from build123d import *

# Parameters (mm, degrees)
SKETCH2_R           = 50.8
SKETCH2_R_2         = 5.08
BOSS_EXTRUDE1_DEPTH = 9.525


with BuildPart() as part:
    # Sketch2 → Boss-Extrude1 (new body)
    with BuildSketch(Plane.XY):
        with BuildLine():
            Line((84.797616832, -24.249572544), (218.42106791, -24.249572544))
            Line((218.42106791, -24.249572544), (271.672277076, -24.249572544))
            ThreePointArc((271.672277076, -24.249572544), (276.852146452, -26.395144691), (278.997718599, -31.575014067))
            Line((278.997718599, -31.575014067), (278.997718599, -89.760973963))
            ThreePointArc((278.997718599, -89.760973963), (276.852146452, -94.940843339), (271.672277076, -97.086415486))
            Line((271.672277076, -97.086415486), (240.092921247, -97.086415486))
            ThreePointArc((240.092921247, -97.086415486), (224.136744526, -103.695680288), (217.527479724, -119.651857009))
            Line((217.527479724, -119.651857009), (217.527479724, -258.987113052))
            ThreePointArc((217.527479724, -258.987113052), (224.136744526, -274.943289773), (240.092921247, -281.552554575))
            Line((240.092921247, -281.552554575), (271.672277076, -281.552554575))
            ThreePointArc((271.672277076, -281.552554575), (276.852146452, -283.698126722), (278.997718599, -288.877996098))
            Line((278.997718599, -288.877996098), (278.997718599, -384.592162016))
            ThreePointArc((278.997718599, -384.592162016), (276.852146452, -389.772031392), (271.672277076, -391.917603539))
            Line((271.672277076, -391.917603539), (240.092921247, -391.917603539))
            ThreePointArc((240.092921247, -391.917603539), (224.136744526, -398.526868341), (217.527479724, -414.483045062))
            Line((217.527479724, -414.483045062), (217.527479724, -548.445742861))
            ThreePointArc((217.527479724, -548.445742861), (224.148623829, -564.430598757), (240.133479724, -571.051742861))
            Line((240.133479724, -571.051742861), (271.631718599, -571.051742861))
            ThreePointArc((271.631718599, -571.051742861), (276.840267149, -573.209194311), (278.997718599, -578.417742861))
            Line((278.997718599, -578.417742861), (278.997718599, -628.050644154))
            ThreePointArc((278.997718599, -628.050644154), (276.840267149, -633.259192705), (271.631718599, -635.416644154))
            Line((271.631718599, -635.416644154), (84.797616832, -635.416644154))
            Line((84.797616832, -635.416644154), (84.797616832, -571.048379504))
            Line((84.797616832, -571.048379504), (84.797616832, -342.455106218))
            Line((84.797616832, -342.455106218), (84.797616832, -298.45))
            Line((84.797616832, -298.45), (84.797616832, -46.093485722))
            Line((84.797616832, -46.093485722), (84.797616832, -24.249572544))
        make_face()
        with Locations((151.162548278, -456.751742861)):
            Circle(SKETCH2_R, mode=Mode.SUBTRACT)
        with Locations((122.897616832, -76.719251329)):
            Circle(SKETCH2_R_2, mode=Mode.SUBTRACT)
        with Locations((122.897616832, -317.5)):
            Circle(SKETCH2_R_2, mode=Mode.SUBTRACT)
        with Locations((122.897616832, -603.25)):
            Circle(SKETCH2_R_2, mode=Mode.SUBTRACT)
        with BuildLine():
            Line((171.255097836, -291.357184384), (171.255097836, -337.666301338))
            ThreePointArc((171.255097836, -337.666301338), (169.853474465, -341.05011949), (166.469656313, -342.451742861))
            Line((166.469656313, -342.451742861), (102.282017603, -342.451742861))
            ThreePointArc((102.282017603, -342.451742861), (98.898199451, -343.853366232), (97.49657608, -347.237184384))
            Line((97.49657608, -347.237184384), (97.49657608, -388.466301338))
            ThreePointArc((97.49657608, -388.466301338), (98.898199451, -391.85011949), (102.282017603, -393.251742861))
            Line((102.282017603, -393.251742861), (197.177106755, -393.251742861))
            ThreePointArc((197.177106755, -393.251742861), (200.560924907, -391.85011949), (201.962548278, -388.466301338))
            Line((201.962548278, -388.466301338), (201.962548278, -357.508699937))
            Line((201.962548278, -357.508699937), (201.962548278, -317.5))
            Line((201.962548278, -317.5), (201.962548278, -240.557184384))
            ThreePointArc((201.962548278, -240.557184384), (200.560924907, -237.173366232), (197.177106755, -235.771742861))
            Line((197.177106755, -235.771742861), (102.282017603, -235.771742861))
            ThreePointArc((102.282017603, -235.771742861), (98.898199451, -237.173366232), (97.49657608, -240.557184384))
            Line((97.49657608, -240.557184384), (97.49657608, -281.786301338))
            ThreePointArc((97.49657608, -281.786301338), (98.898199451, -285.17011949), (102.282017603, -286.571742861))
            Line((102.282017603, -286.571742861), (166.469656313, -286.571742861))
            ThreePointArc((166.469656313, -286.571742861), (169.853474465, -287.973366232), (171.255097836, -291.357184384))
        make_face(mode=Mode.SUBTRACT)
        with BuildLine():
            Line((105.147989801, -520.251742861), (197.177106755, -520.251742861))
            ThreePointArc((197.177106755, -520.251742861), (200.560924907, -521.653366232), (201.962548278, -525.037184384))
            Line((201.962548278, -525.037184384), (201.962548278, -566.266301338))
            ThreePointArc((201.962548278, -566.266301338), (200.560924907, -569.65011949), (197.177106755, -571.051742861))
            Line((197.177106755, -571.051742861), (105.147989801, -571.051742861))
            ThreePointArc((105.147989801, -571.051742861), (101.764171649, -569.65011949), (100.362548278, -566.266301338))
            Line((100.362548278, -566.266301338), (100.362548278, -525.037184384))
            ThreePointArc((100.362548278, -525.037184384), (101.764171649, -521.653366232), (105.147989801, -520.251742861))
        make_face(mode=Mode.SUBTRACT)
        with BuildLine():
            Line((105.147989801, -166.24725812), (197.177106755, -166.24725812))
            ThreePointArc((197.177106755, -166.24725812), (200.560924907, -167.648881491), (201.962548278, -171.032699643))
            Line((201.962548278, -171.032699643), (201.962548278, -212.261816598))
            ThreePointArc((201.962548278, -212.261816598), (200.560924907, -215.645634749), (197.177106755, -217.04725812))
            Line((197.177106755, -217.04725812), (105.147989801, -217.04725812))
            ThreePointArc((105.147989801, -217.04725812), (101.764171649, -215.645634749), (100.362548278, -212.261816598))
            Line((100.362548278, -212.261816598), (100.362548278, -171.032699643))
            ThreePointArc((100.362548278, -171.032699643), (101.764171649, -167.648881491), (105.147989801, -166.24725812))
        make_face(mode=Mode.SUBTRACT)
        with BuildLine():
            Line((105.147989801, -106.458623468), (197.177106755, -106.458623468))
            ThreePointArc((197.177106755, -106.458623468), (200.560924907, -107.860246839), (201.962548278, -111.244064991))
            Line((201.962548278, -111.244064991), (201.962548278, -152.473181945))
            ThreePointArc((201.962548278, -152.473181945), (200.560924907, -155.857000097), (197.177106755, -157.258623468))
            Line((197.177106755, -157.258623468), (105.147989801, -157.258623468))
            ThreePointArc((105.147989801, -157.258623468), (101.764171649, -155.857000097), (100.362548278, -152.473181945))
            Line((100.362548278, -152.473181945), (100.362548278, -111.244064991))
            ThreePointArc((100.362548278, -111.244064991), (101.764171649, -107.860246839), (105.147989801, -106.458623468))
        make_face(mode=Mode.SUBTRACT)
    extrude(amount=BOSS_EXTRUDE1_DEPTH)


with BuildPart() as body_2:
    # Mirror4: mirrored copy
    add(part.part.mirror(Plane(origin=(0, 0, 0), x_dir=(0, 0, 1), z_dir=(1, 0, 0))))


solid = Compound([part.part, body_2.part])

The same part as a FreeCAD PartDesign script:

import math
import FreeCAD as App
import Part
import Sketcher

V = App.Vector
Q = App.Units.Quantity

doc = App.newDocument("Part")
params = doc.addObject("Spreadsheet::Sheet", "Params")
for row, (alias, value) in enumerate([
    ("sketch1_diameter", "4 in"),
    ("sketch1_diameter2", "0.4 in"),
    ("sketch1_radius", "0.29 in"),
    ("sketch1_radius2", "0.89 in"),
    ("pad1_length", "0.375 in"),
], start=1):
    params.set(f"A{row}", alias)
    params.set(f"B{row}", "=" + value)
    params.setAlias(f"B{row}", alias)

body = doc.addObject("PartDesign::Body", "Body")

# Sketch on XY plane
sketch1 = doc.addObject("Sketcher::SketchObject", "Sketch")
body.addObject(sketch1)
sketch1.AttachmentSupport = (doc.XY_Plane, [""])
sketch1.MapMode = "FlatFace"
sketch1.addGeometry([
    Part.LineSegment(V(271.7, -24.2, 0), V(84.8, -24.2, 0)),  # 0
    Part.LineSegment(V(84.8, -24.2, 0), V(84.8, -635.4, 0)),  # 1
    Part.LineSegment(V(84.8, -635.4, 0), V(271.6, -635.4, 0)),  # 2
    Part.ArcOfCircle(Part.Circle(V(271.6, -628.1, 0), V(0, 0, 1), 7.4), math.radians(-90), math.radians(0)),  # 3
    Part.LineSegment(V(279, -628.1, 0), V(279, -578.4, 0)),  # 4
    Part.ArcOfCircle(Part.Circle(V(271.6, -578.4, 0), V(0, 0, 1), 7.4), math.radians(0), math.radians(90)),  # 5
    Part.LineSegment(V(271.6, -571.1, 0), V(240.1, -571.1, 0)),  # 6
    Part.ArcOfCircle(Part.Circle(V(240.1, -548.4, 0), V(0, 0, 1), 22.6), math.radians(180), math.radians(270)),  # 7
    Part.LineSegment(V(217.5, -548.4, 0), V(217.5, -414.5, 0)),  # 8
    Part.ArcOfCircle(Part.Circle(V(240.1, -414.5, 0), V(0, 0, 1), 22.6), math.radians(90), math.radians(180)),  # 9
    Part.LineSegment(V(240.1, -391.9, 0), V(271.7, -391.9, 0)),  # 10
    Part.ArcOfCircle(Part.Circle(V(271.7, -384.6, 0), V(0, 0, 1), 7.3), math.radians(-90), math.radians(0)),  # 11
    Part.LineSegment(V(279, -384.6, 0), V(279, -288.9, 0)),  # 12
    Part.ArcOfCircle(Part.Circle(V(271.7, -288.9, 0), V(0, 0, 1), 7.3), math.radians(0), math.radians(90)),  # 13
    Part.LineSegment(V(271.7, -281.6, 0), V(240.1, -281.6, 0)),  # 14
    Part.ArcOfCircle(Part.Circle(V(240.1, -259, 0), V(0, 0, 1), 22.6), math.radians(-180), math.radians(-90)),  # 15
    Part.LineSegment(V(217.5, -259, 0), V(217.5, -119.7, 0)),  # 16
    Part.ArcOfCircle(Part.Circle(V(240.1, -119.7, 0), V(0, 0, 1), 22.6), math.radians(90), math.radians(180)),  # 17
    Part.LineSegment(V(240.1, -97.1, 0), V(271.7, -97.1, 0)),  # 18
    Part.ArcOfCircle(Part.Circle(V(271.7, -89.8, 0), V(0, 0, 1), 7.3), math.radians(-90), math.radians(0)),  # 19
    Part.LineSegment(V(279, -89.8, 0), V(279, -31.6, 0)),  # 20
    Part.ArcOfCircle(Part.Circle(V(271.7, -31.6, 0), V(0, 0, 1), 7.3), math.radians(0), math.radians(90)),  # 21
    Part.LineSegment(V(105.1, -520.3, 0), V(197.2, -520.3, 0)),  # 22
    Part.ArcOfCircle(Part.Circle(V(197.2, -525, 0), V(0, 0, 1), 4.8), math.radians(0), math.radians(90)),  # 23
    Part.LineSegment(V(202, -525, 0), V(202, -566.3, 0)),  # 24
    Part.ArcOfCircle(Part.Circle(V(197.2, -566.3, 0), V(0, 0, 1), 4.8), math.radians(-90), math.radians(0)),  # 25
    Part.LineSegment(V(197.2, -571.1, 0), V(105.1, -571.1, 0)),  # 26
    Part.ArcOfCircle(Part.Circle(V(105.1, -566.3, 0), V(0, 0, 1), 4.8), math.radians(180), math.radians(270)),  # 27
    Part.LineSegment(V(100.4, -566.3, 0), V(100.4, -525, 0)),  # 28
    Part.ArcOfCircle(Part.Circle(V(105.1, -525, 0), V(0, 0, 1), 4.8), math.radians(90), math.radians(180)),  # 29
    Part.Circle(V(151.2, -456.8, 0), V(0, 0, 1), 50.8),  # 30
    Part.Circle(V(122.9, -603.2, 0), V(0, 0, 1), 5.1),  # 31
    Part.LineSegment(V(105.1, -166.2, 0), V(197.2, -166.2, 0)),  # 32
    Part.ArcOfCircle(Part.Circle(V(197.2, -171, 0), V(0, 0, 1), 4.8), math.radians(0), math.radians(90)),  # 33
    Part.LineSegment(V(202, -171, 0), V(202, -212.3, 0)),  # 34
    Part.ArcOfCircle(Part.Circle(V(197.2, -212.3, 0), V(0, 0, 1), 4.8), math.radians(-90), math.radians(0)),  # 35
    Part.LineSegment(V(197.2, -217, 0), V(105.1, -217, 0)),  # 36
    Part.ArcOfCircle(Part.Circle(V(105.1, -212.3, 0), V(0, 0, 1), 4.8), math.radians(-180), math.radians(-90)),  # 37
    Part.LineSegment(V(100.4, -212.3, 0), V(100.4, -171, 0)),  # 38
    Part.ArcOfCircle(Part.Circle(V(105.1, -171, 0), V(0, 0, 1), 4.8), math.radians(90), math.radians(180)),  # 39
    Part.LineSegment(V(105.1, -106.5, 0), V(197.2, -106.5, 0)),  # 40
    Part.ArcOfCircle(Part.Circle(V(197.2, -111.2, 0), V(0, 0, 1), 4.8), math.radians(0), math.radians(90)),  # 41
    Part.LineSegment(V(202, -111.2, 0), V(202, -152.5, 0)),  # 42
    Part.ArcOfCircle(Part.Circle(V(197.2, -152.5, 0), V(0, 0, 1), 4.8), math.radians(-90), math.radians(0)),  # 43
    Part.LineSegment(V(197.2, -157.3, 0), V(105.1, -157.3, 0)),  # 44
    Part.ArcOfCircle(Part.Circle(V(105.1, -152.5, 0), V(0, 0, 1), 4.8), math.radians(180), math.radians(270)),  # 45
    Part.LineSegment(V(100.4, -152.5, 0), V(100.4, -111.2, 0)),  # 46
    Part.ArcOfCircle(Part.Circle(V(105.1, -111.2, 0), V(0, 0, 1), 4.8), math.radians(90), math.radians(180)),  # 47
    Part.ArcOfCircle(Part.Circle(V(166.5, -291.4, 0), V(0, 0, 1), 4.8), math.radians(0), math.radians(90)),  # 48
    Part.LineSegment(V(166.5, -286.6, 0), V(102.3, -286.6, 0)),  # 49
    Part.ArcOfCircle(Part.Circle(V(102.3, -281.8, 0), V(0, 0, 1), 4.8), math.radians(180), math.radians(270)),  # 50
    Part.LineSegment(V(97.5, -281.8, 0), V(97.5, -240.6, 0)),  # 51
    Part.ArcOfCircle(Part.Circle(V(102.3, -240.6, 0), V(0, 0, 1), 4.8), math.radians(90), math.radians(180)),  # 52
    Part.LineSegment(V(102.3, -235.8, 0), V(197.2, -235.8, 0)),  # 53
    Part.ArcOfCircle(Part.Circle(V(197.2, -240.6, 0), V(0, 0, 1), 4.8), math.radians(0), math.radians(90)),  # 54
    Part.LineSegment(V(202, -240.6, 0), V(202, -388.5, 0)),  # 55
    Part.ArcOfCircle(Part.Circle(V(197.2, -388.5, 0), V(0, 0, 1), 4.8), math.radians(-90), math.radians(0)),  # 56
    Part.LineSegment(V(197.2, -393.3, 0), V(102.3, -393.3, 0)),  # 57
    Part.ArcOfCircle(Part.Circle(V(102.3, -388.5, 0), V(0, 0, 1), 4.8), math.radians(180), math.radians(270)),  # 58
    Part.LineSegment(V(97.5, -388.5, 0), V(97.5, -347.2, 0)),  # 59
    Part.ArcOfCircle(Part.Circle(V(102.3, -347.2, 0), V(0, 0, 1), 4.8), math.radians(90), math.radians(180)),  # 60
    Part.LineSegment(V(102.3, -342.5, 0), V(166.5, -342.5, 0)),  # 61
    Part.ArcOfCircle(Part.Circle(V(166.5, -337.7, 0), V(0, 0, 1), 4.8), math.radians(-90), math.radians(0)),  # 62
    Part.LineSegment(V(171.3, -337.7, 0), V(171.3, -291.4, 0)),  # 63
    Part.Circle(V(122.9, -317.5, 0), V(0, 0, 1), 5.1),  # 64
    Part.Circle(V(122.9, -76.7, 0), V(0, 0, 1), 5.1),  # 65
], False)
sketch1.addConstraint([
    Sketcher.Constraint("Coincident", 0, 2, 1, 1),
    Sketcher.Constraint("Coincident", 1, 2, 2, 1),
    Sketcher.Constraint("Tangent", 2, 2, 3, 1),
    Sketcher.Constraint("Tangent", 3, 2, 4, 1),
    Sketcher.Constraint("Tangent", 4, 2, 5, 1),
    Sketcher.Constraint("Tangent", 5, 2, 6, 1),
    Sketcher.Constraint("Tangent", 6, 2, 7, 2),
    Sketcher.Constraint("Tangent", 7, 1, 8, 1),
    Sketcher.Constraint("Tangent", 8, 2, 9, 2),
    Sketcher.Constraint("Tangent", 9, 1, 10, 1),
    Sketcher.Constraint("Tangent", 10, 2, 11, 1),
    Sketcher.Constraint("Tangent", 11, 2, 12, 1),
    Sketcher.Constraint("Tangent", 12, 2, 13, 1),
    Sketcher.Constraint("Tangent", 13, 2, 14, 1),
    Sketcher.Constraint("Tangent", 14, 2, 15, 2),
    Sketcher.Constraint("Tangent", 15, 1, 16, 1),
    Sketcher.Constraint("Tangent", 16, 2, 17, 2),
    Sketcher.Constraint("Tangent", 17, 1, 18, 1),
    Sketcher.Constraint("Tangent", 18, 2, 19, 1),
    Sketcher.Constraint("Tangent", 19, 2, 20, 1),
    Sketcher.Constraint("Tangent", 20, 2, 21, 1),
    Sketcher.Constraint("Tangent", 21, 2, 0, 1),
    Sketcher.Constraint("Tangent", 22, 2, 23, 2),
    Sketcher.Constraint("Tangent", 23, 1, 24, 1),
    Sketcher.Constraint("Tangent", 24, 2, 25, 2),
    Sketcher.Constraint("Tangent", 25, 1, 26, 1),
    Sketcher.Constraint("Tangent", 26, 2, 27, 2),
    Sketcher.Constraint("Tangent", 27, 1, 28, 1),
    Sketcher.Constraint("Tangent", 28, 2, 29, 2),
    Sketcher.Constraint("Tangent", 29, 1, 22, 1),
    Sketcher.Constraint("Tangent", 32, 2, 33, 2),
    Sketcher.Constraint("Tangent", 33, 1, 34, 1),
    Sketcher.Constraint("Tangent", 34, 2, 35, 2),
    Sketcher.Constraint("Tangent", 35, 1, 36, 1),
    Sketcher.Constraint("Tangent", 36, 2, 37, 2),
    Sketcher.Constraint("Tangent", 37, 1, 38, 1),
    Sketcher.Constraint("Tangent", 38, 2, 39, 2),
    Sketcher.Constraint("Tangent", 39, 1, 32, 1),
    Sketcher.Constraint("Tangent", 40, 2, 41, 2),
    Sketcher.Constraint("Tangent", 41, 1, 42, 1),
    Sketcher.Constraint("Tangent", 42, 2, 43, 2),
    Sketcher.Constraint("Tangent", 43, 1, 44, 1),
    Sketcher.Constraint("Tangent", 44, 2, 45, 2),
    Sketcher.Constraint("Tangent", 45, 1, 46, 1),
    Sketcher.Constraint("Tangent", 46, 2, 47, 2),
    Sketcher.Constraint("Tangent", 47, 1, 40, 1),
    Sketcher.Constraint("Tangent", 48, 2, 49, 1),
    Sketcher.Constraint("Tangent", 49, 2, 50, 2),
    Sketcher.Constraint("Tangent", 50, 1, 51, 1),
    Sketcher.Constraint("Tangent", 51, 2, 52, 2),
    Sketcher.Constraint("Tangent", 52, 1, 53, 1),
    Sketcher.Constraint("Tangent", 53, 2, 54, 2),
    Sketcher.Constraint("Tangent", 54, 1, 55, 1),
    Sketcher.Constraint("Tangent", 55, 2, 56, 2),
    Sketcher.Constraint("Tangent", 56, 1, 57, 1),
    Sketcher.Constraint("Tangent", 57, 2, 58, 2),
    Sketcher.Constraint("Tangent", 58, 1, 59, 1),
    Sketcher.Constraint("Tangent", 59, 2, 60, 2),
    Sketcher.Constraint("Tangent", 60, 1, 61, 1),
    Sketcher.Constraint("Tangent", 61, 2, 62, 1),
    Sketcher.Constraint("Tangent", 62, 2, 63, 1),
    Sketcher.Constraint("Tangent", 63, 2, 48, 1),
    Sketcher.Constraint("Horizontal", 0),
    Sketcher.Constraint("Vertical", 1),
    Sketcher.Constraint("Horizontal", 2),
    Sketcher.Constraint("Vertical", 4),
    Sketcher.Constraint("Horizontal", 6),
    Sketcher.Constraint("Vertical", 8),
    Sketcher.Constraint("Horizontal", 10),
    Sketcher.Constraint("Vertical", 12),
    Sketcher.Constraint("Horizontal", 14),
    Sketcher.Constraint("Vertical", 16),
    Sketcher.Constraint("Horizontal", 18),
    Sketcher.Constraint("Vertical", 20),
    Sketcher.Constraint("Horizontal", 22),
    Sketcher.Constraint("Vertical", 24),
    Sketcher.Constraint("Horizontal", 26),
    Sketcher.Constraint("Vertical", 28),
    Sketcher.Constraint("Horizontal", 32),
    Sketcher.Constraint("Vertical", 34),
    Sketcher.Constraint("Horizontal", 36),
    Sketcher.Constraint("Vertical", 38),
    Sketcher.Constraint("Horizontal", 40),
    Sketcher.Constraint("Vertical", 42),
    Sketcher.Constraint("Horizontal", 44),
    Sketcher.Constraint("Vertical", 46),
    Sketcher.Constraint("Horizontal", 49),
    Sketcher.Constraint("Vertical", 51),
    Sketcher.Constraint("Horizontal", 53),
    Sketcher.Constraint("Vertical", 55),
    Sketcher.Constraint("Horizontal", 57),
    Sketcher.Constraint("Vertical", 59),
    Sketcher.Constraint("Horizontal", 61),
    Sketcher.Constraint("Vertical", 63),
    Sketcher.Constraint("Equal", 3, 5),
    Sketcher.Constraint("Equal", 11, 13),
    Sketcher.Constraint("Equal", 9, 15),
    Sketcher.Constraint("Equal", 15, 17),
    Sketcher.Constraint("Equal", 13, 19),
    Sketcher.Constraint("Equal", 19, 21),
    Sketcher.Constraint("Equal", 23, 25),
    Sketcher.Constraint("Equal", 25, 27),
    Sketcher.Constraint("Equal", 27, 29),
    Sketcher.Constraint("Equal", 29, 33),
    Sketcher.Constraint("Equal", 33, 35),
    Sketcher.Constraint("Equal", 35, 37),
    Sketcher.Constraint("Equal", 37, 39),
    Sketcher.Constraint("Equal", 39, 41),
    Sketcher.Constraint("Equal", 41, 43),
    Sketcher.Constraint("Equal", 43, 45),
    Sketcher.Constraint("Equal", 45, 47),
    Sketcher.Constraint("Equal", 47, 48),
    Sketcher.Constraint("Equal", 48, 50),
    Sketcher.Constraint("Equal", 50, 52),
    Sketcher.Constraint("Equal", 52, 54),
    Sketcher.Constraint("Equal", 54, 56),
    Sketcher.Constraint("Equal", 56, 58),
    Sketcher.Constraint("Equal", 58, 60),
    Sketcher.Constraint("Equal", 60, 62),
    Sketcher.Constraint("Equal", 31, 64),
    Sketcher.Constraint("Equal", 64, 65),
    Sketcher.Constraint("Horizontal", 6, 2, 25, 1),
    Sketcher.Constraint("Vertical", 9, 3, 15, 3),
    Sketcher.Constraint("Vertical", 13, 3, 19, 3),
    Sketcher.Constraint("Vertical", 25, 3, 33, 3),
    Sketcher.Constraint("Vertical", 29, 3, 37, 3),
    Sketcher.Constraint("Vertical", 35, 3, 41, 3),
    Sketcher.Constraint("Vertical", 39, 3, 45, 3),
    Sketcher.Constraint("Vertical", 43, 3, 54, 3),
    Sketcher.Constraint("Vertical", 52, 3, 58, 3),
    Sketcher.Constraint("Vertical", 31, 3, 64, 3),
    Sketcher.Constraint("Vertical", 64, 3, 65, 3),
    Sketcher.Constraint("Vertical", 4, 2, 11, 2),
    Sketcher.Constraint("Equal", 28, 34),
    Sketcher.Constraint("Equal", 38, 42),
    Sketcher.Constraint("Equal", 46, 51),
    Sketcher.Constraint("Equal", 51, 59),
    Sketcher.Constraint("Diameter", 30, Q("4 in")),
    Sketcher.Constraint("Diameter", 31, Q("0.4 in")),
    Sketcher.Constraint("Radius", 3, Q("0.29 in")),
    Sketcher.Constraint("Radius", 7, Q("0.89 in")),
    Sketcher.Constraint("DistanceY", 64, 3, -1, 1, Q("12.5 in")),
    Sketcher.Constraint("DistanceY", 31, 3, -1, 1, Q("23.75 in")),
    Sketcher.Constraint("Radius", 9, Q("22.565442 mm")),
    Sketcher.Constraint("Radius", 11, Q("7.325442 mm")),
    Sketcher.Constraint("Radius", 23, Q("4.785442 mm")),
    Sketcher.Constraint("DistanceX", 2, 1, 2, 2, Q("186.834102 mm")),
    Sketcher.Constraint("DistanceY", 4, 1, 4, 2, Q("49.632901 mm")),
    Sketcher.Constraint("DistanceY", 17, 1, -1, 1, Q("3.8222998 in")),
    Sketcher.Constraint("DistanceX", 6, 2, 6, 1, Q("31.498239 mm")),
    Sketcher.Constraint("DistanceX", 49, 2, 49, 1, Q("64.187639 mm")),
    Sketcher.Constraint("DistanceX", 53, 1, 53, 2, Q("94.895089 mm")),
    Sketcher.Constraint("DistanceY", 1, 2, 1, 1, Q("611.167072 mm")),
    Sketcher.Constraint("DistanceY", 20, 1, 20, 2, Q("58.18596 mm")),
    Sketcher.Constraint("DistanceY", 33, 3, -1, 1, Q("171.0327 mm")),
    Sketcher.Constraint("DistanceY", 50, 3, -1, 1, Q("281.786301 mm")),
    Sketcher.Constraint("DistanceY", 56, 3, -1, 1, Q("388.466301 mm")),
    Sketcher.Constraint("DistanceY", 62, 3, -1, 1, Q("337.666301 mm")),
    Sketcher.Constraint("DistanceX", 22, 1, 22, 2, Q("92.029117 mm")),
    Sketcher.Constraint("DistanceY", 8, 1, 8, 2, Q("133.962698 mm")),
    Sketcher.Constraint("DistanceY", 12, 1, 12, 2, Q("95.714166 mm")),
    Sketcher.Constraint("DistanceX", -1, 1, 3, 3, Q("271.631719 mm")),
    Sketcher.Constraint("DistanceX", -1, 1, 27, 3, Q("105.14799 mm")),
    Sketcher.Constraint("DistanceX", -1, 1, 30, 3, Q("151.162548 mm")),
    Sketcher.Constraint("DistanceY", 43, 3, -1, 1, Q("152.473182 mm")),
    Sketcher.Constraint("DistanceY", 65, 3, -1, 1, Q("76.719251 mm")),
    Sketcher.Constraint("DistanceY", 30, 3, -1, 1, Q("456.751743 mm")),
    Sketcher.Constraint("DistanceX", -1, 1, 31, 3, Q("122.897617 mm")),
])
sketch1.setExpression("Constraints[137]", "Params.sketch1_diameter")
sketch1.setExpression("Constraints[138]", "Params.sketch1_diameter2")
sketch1.setExpression("Constraints[139]", "Params.sketch1_radius")
sketch1.setExpression("Constraints[140]", "Params.sketch1_radius2")
pad1 = doc.addObject("PartDesign::Pad", "Pad")
body.addObject(pad1)
pad1.Profile = sketch1
pad1.setExpression("Length", "Params.pad1_length")
body2 = doc.addObject("PartDesign::Body", "Body001")
doc.recompute()

mirroring = doc.addObject("Part::Mirroring", "Mirroring")
mirroring.Source = body
mirroring.Base = V(0, 0, 0)
mirroring.Normal = V(1, 0, 0)
body2.BaseFeature = mirroring
doc.recompute()
mirroring.Visibility = False

doc.recompute()
